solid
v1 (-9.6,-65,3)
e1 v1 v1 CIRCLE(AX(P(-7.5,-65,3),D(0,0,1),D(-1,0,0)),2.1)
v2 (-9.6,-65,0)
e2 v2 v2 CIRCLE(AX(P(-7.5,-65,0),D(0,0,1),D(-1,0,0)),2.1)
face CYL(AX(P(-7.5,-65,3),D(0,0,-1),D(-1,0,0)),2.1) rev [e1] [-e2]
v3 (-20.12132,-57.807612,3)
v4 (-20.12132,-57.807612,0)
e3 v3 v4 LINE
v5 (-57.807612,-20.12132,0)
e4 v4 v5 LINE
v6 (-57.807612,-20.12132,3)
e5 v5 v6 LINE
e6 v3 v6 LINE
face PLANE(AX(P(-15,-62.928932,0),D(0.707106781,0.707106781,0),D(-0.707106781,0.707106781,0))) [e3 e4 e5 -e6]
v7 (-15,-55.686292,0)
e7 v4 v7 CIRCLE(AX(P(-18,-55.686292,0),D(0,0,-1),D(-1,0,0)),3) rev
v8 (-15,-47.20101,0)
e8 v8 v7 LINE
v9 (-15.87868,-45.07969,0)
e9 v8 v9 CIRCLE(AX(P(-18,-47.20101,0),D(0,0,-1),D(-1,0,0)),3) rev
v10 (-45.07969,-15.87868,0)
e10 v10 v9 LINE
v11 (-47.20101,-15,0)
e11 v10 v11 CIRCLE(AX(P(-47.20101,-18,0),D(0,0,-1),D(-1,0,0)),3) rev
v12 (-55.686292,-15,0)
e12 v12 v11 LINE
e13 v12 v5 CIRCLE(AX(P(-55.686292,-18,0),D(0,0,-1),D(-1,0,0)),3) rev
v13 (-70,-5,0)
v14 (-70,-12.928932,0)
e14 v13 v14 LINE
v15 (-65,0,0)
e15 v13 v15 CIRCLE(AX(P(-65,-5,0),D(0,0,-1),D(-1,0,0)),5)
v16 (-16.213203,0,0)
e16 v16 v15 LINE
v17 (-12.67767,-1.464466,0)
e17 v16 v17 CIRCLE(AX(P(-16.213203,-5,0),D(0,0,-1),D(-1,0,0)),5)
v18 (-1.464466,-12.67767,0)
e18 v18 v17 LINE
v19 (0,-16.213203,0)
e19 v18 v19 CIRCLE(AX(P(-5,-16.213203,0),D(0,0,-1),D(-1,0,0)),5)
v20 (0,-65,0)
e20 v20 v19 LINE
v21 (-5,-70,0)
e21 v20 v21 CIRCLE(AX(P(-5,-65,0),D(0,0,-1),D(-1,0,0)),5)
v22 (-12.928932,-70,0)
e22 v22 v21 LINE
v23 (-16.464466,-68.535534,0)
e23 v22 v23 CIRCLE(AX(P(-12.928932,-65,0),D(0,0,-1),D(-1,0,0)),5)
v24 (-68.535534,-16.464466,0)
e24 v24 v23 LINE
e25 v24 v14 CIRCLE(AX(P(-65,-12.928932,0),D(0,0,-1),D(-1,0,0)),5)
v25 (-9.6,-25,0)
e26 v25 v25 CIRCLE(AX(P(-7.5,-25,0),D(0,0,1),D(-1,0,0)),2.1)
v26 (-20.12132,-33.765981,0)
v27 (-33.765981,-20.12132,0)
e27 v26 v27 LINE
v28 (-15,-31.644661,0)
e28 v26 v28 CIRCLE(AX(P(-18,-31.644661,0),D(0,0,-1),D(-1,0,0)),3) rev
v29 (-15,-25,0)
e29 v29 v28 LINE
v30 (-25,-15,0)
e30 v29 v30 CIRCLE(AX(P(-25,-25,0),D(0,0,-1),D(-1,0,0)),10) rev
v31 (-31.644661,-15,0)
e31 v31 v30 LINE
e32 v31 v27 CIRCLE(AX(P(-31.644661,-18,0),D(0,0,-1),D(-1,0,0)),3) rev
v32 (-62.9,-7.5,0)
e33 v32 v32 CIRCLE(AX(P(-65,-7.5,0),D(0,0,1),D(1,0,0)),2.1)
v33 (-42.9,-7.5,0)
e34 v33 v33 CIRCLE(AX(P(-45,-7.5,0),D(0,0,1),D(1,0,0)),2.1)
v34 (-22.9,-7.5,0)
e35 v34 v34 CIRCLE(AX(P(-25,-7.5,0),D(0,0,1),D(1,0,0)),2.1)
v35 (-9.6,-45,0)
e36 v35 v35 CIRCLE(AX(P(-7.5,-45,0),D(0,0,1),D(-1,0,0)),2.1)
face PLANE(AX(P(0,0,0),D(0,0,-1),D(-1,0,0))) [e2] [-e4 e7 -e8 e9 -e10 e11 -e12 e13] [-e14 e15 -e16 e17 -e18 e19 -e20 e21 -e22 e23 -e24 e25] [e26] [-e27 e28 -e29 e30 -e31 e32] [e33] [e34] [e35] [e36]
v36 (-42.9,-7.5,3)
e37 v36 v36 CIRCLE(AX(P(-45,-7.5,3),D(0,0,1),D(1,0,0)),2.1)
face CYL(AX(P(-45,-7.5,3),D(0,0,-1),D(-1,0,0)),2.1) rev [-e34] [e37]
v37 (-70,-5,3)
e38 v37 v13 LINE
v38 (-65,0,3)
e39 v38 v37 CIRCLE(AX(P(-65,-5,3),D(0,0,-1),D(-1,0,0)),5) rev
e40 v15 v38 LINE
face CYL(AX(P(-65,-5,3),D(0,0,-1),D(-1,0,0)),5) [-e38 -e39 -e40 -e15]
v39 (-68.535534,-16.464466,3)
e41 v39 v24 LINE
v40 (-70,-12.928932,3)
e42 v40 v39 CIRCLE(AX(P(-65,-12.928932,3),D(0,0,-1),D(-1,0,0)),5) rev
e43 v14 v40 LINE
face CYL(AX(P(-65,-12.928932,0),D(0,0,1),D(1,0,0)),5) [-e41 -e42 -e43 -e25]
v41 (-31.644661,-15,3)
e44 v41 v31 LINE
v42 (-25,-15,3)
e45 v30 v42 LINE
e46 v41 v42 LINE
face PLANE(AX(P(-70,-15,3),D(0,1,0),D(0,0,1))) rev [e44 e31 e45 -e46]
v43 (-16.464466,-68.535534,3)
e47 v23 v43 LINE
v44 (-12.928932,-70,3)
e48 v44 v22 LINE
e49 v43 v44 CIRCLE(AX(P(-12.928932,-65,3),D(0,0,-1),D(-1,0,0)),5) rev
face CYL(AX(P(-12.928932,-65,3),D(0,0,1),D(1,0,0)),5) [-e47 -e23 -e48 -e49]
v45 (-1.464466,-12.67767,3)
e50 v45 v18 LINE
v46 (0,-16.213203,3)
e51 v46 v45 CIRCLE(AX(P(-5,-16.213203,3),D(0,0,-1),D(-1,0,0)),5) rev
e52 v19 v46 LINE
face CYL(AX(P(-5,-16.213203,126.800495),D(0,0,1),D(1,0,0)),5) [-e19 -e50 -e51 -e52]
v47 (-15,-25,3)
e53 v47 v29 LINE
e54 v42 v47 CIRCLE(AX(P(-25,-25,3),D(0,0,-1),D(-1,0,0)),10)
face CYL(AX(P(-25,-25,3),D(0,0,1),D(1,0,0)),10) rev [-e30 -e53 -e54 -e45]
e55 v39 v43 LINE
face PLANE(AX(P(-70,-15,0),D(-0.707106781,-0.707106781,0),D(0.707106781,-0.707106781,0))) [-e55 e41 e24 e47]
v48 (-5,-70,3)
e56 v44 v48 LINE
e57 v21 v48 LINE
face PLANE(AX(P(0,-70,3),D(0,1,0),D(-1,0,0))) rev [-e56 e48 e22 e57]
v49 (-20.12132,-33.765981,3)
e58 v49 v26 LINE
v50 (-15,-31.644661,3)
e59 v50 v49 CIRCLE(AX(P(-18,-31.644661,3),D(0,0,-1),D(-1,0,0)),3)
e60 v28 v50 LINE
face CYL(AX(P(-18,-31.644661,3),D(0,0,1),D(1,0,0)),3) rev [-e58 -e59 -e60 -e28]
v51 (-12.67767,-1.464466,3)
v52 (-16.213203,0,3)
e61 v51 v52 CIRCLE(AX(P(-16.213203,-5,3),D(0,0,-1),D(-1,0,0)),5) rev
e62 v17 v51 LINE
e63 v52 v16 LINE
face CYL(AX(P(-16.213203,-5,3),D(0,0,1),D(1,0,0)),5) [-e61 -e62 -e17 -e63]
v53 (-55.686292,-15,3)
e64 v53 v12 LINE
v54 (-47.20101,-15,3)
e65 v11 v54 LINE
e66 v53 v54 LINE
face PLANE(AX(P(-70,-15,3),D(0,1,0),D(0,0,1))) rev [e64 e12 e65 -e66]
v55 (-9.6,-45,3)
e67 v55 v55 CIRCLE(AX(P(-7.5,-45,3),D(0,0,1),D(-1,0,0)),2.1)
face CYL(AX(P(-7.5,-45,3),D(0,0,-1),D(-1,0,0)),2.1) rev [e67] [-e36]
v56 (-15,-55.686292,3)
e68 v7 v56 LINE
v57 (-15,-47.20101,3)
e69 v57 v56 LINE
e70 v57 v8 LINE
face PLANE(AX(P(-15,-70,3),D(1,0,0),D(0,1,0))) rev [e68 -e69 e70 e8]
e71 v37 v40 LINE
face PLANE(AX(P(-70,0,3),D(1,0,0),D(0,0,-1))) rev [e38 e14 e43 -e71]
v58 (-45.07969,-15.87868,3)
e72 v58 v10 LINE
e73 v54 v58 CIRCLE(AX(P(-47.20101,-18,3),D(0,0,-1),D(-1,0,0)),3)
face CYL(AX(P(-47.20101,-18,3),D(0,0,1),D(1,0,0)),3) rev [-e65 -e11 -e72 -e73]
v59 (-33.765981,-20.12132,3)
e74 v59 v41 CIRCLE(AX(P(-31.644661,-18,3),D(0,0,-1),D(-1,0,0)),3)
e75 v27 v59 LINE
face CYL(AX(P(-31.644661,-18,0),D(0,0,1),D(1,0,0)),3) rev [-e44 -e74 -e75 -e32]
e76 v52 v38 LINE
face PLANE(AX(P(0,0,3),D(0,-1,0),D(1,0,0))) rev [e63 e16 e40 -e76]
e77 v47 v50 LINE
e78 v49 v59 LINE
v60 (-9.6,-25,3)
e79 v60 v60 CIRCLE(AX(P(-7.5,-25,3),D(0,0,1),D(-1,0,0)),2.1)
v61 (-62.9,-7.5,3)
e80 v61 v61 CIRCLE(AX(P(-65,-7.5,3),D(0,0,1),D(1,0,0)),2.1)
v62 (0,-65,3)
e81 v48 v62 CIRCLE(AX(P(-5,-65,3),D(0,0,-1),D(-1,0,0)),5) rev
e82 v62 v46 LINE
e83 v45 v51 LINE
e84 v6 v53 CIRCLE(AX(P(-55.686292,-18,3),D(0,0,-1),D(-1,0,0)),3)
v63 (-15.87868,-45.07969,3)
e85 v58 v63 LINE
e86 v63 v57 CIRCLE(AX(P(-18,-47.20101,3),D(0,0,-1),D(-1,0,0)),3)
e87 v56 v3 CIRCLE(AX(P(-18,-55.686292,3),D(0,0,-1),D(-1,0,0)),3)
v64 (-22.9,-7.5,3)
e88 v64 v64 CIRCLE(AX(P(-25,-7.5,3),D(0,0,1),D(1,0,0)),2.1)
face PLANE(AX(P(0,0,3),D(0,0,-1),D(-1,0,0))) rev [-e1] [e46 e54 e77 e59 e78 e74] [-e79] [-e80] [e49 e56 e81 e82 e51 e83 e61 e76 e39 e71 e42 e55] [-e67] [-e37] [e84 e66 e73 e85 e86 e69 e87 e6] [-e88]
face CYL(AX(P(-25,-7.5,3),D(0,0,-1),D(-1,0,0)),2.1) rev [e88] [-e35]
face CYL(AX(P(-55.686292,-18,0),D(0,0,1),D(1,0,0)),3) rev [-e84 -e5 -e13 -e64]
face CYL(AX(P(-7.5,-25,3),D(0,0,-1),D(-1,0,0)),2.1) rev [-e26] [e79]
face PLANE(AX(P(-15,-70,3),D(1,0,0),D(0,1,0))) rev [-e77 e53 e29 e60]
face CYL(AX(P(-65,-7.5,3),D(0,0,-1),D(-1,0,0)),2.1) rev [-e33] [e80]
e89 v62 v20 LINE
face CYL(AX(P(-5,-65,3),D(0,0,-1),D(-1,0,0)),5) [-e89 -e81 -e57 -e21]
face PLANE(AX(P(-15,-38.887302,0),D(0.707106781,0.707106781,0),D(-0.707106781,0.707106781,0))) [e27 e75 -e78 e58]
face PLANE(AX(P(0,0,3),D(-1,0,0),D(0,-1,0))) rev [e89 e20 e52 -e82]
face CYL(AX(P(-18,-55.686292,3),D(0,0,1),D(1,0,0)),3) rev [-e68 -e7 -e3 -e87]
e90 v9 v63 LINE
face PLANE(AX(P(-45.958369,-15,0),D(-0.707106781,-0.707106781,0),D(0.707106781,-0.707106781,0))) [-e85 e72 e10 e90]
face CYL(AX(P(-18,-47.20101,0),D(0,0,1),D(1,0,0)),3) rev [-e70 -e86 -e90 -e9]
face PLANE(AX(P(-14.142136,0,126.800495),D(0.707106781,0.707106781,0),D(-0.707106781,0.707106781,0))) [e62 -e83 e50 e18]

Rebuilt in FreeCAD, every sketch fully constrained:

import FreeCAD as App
import Part
import Sketcher
Q = App.Units.Quantity


def edges_at(feature, points):
    """Names of the edges that pass closest to the given points."""
    edges = feature.Shape.Edges
    near = lambda p: min(range(len(edges)), key=lambda i: edges[i].distToShape(Part.Vertex(*p))[0])
    return sorted({f"Edge{near(p) + 1}" for p in points})

doc = App.newDocument("Part")
body = doc.addObject("PartDesign::Body", "Body")

# Sketch on XY plane
sketch1 = body.newObject("Sketcher::SketchObject", "Sketch")
sketch1.AttachmentSupport = (doc.getObject("XY_Plane"), [""])
sketch1.MapMode = "FlatFace"
sketch1.addGeometry(Part.LineSegment(App.Vector(0, 0, 0), App.Vector(-70, 0, 0)), False)
sketch1.addGeometry(Part.LineSegment(App.Vector(-70, 0, 0), App.Vector(-70, -15, 0)), False)
sketch1.addGeometry(Part.LineSegment(App.Vector(-70, -15, 0), App.Vector(-15, -15, 0)), False)
sketch1.addGeometry(Part.LineSegment(App.Vector(-15, -15, 0), App.Vector(-15, -70, 0)), False)
sketch1.addGeometry(Part.LineSegment(App.Vector(-15, -70, 0), App.Vector(0, -70, 0)), False)
sketch1.addGeometry(Part.LineSegment(App.Vector(0, -70, 0), App.Vector(0, 0, 0)), False)
sketch1.addGeometry(Part.Circle(App.Vector(-7.5, -65, 0), App.Vector(0, 0, 1), 2.1), False)
sketch1.addGeometry(Part.Circle(App.Vector(-7.5, -45, 0), App.Vector(0, 0, 1), 2.1), False)
sketch1.addGeometry(Part.Circle(App.Vector(-65, -7.5, 0), App.Vector(0, 0, 1), 2.1), False)
sketch1.addGeometry(Part.Circle(App.Vector(-45, -7.5, 0), App.Vector(0, 0, 1), 2.1), False)
sketch1.addGeometry(Part.Circle(App.Vector(-7.5, -25, 0), App.Vector(0, 0, 1), 2.1), False)
sketch1.addGeometry(Part.Circle(App.Vector(-25, -7.5, 0), App.Vector(0, 0, 1), 2.1), False)
sketch1.addConstraint(Sketcher.Constraint("Coincident", 0, 2, 1, 1))
sketch1.addConstraint(Sketcher.Constraint("Coincident", 1, 2, 2, 1))
sketch1.addConstraint(Sketcher.Constraint("Coincident", 2, 2, 3, 1))
sketch1.addConstraint(Sketcher.Constraint("Coincident", 3, 2, 4, 1))
sketch1.addConstraint(Sketcher.Constraint("Coincident", 4, 2, 5, 1))
sketch1.addConstraint(Sketcher.Constraint("Coincident", 5, 2, 0, 1))
sketch1.addConstraint(Sketcher.Constraint("Horizontal", 0))
sketch1.addConstraint(Sketcher.Constraint("Vertical", 1))
sketch1.addConstraint(Sketcher.Constraint("Horizontal", 2))
sketch1.addConstraint(Sketcher.Constraint("Vertical", 3))
sketch1.addConstraint(Sketcher.Constraint("Horizontal", 4))
sketch1.addConstraint(Sketcher.Constraint("Vertical", 5))
sketch1.addConstraint(Sketcher.Constraint("Coincident", 5, 2, -1, 1))
sketch1.addConstraint(Sketcher.Constraint("Equal", 6, 7))
sketch1.addConstraint(Sketcher.Constraint("Equal", 7, 8))
sketch1.addConstraint(Sketcher.Constraint("Equal", 8, 9))
sketch1.addConstraint(Sketcher.Constraint("Equal", 9, 10))
sketch1.addConstraint(Sketcher.Constraint("Equal", 10, 11))
sketch1.addConstraint(Sketcher.Constraint("Horizontal", 8, 3, 9, 3))
sketch1.addConstraint(Sketcher.Constraint("Horizontal", 9, 3, 11, 3))
sketch1.addConstraint(Sketcher.Constraint("Vertical", 6, 3, 7, 3))
sketch1.addConstraint(Sketcher.Constraint("Vertical", 7, 3, 10, 3))
sketch1.addConstraint(Sketcher.Constraint("Equal", 4, 1))
sketch1.addConstraint(Sketcher.Constraint("Equal", 2, 3))
sketch1.addConstraint(Sketcher.Constraint("Diameter", 6, 4.2))
sketch1.addConstraint(Sketcher.Constraint("DistanceX", 0, 2, 0, 1, 70.0))
sketch1.addConstraint(Sketcher.Constraint("DistanceX", 2, 1, 2, 2, 55.0))
sketch1.addConstraint(Sketcher.Constraint("DistanceY", 6, 3, -1, 1, 65.0))
sketch1.addConstraint(Sketcher.Constraint("DistanceY", 7, 3, -1, 1, 45.0))
sketch1.addConstraint(Sketcher.Constraint("DistanceX", 8, 3, -1, 1, 65.0))
sketch1.addConstraint(Sketcher.Constraint("DistanceX", 9, 3, -1, 1, 45.0))
sketch1.addConstraint(Sketcher.Constraint("DistanceY", 10, 3, -1, 1, 25.0))
sketch1.addConstraint(Sketcher.Constraint("DistanceX", 11, 3, -1, 1, 25.0))
sketch1.addConstraint(Sketcher.Constraint("DistanceX", 6, 3, -1, 1, 7.5))
sketch1.addConstraint(Sketcher.Constraint("DistanceY", 8, 3, -1, 1, 7.5))
pad1 = body.newObject("PartDesign::Pad", "Pad")
pad1.Profile = sketch1
pad1.Length = 3

# Sketch on XY plane
sketch2 = body.newObject("Sketcher::SketchObject", "Sketch001")
sketch2.AttachmentSupport = (doc.getObject("XY_Plane"), [""])
sketch2.MapMode = "FlatFace"
sketch2.AttachmentOffset = App.Placement(App.Vector(0, 0, 3), App.Rotation())
sketch2.addGeometry(Part.LineSegment(App.Vector(-70, -15, 0), App.Vector(-15, -70, 0)), False)
sketch2.addGeometry(Part.LineSegment(App.Vector(-15, -70, 0), App.Vector(-15, -63, 0)), False)
sketch2.addGeometry(Part.LineSegment(App.Vector(-15, -63, 0), App.Vector(-63, -15, 0)), False)
sketch2.addGeometry(Part.LineSegment(App.Vector(-63, -15, 0), App.Vector(-70, -15, 0)), False)
sketch2.addConstraint(Sketcher.Constraint("Coincident", 0, 2, 1, 1))
sketch2.addConstraint(Sketcher.Constraint("Coincident", 1, 2, 2, 1))
sketch2.addConstraint(Sketcher.Constraint("Coincident", 2, 2, 3, 1))
sketch2.addConstraint(Sketcher.Constraint("Coincident", 3, 2, 0, 1))
sketch2.addConstraint(Sketcher.Constraint("Vertical", 1))
sketch2.addConstraint(Sketcher.Constraint("Horizontal", 3))
sketch2.addConstraint(Sketcher.Constraint("Parallel", 0, 2))
sketch2.addConstraint(Sketcher.Constraint("Equal", 3, 1))
sketch2.addConstraint(Sketcher.Constraint("DistanceX", 0, 2, -1, 1, 15.0))
sketch2.addConstraint(Sketcher.Constraint("DistanceY", 0, 2, -1, 1, 70.0))
sketch2.addConstraint(Sketcher.Constraint("DistanceY", 2, 2, -1, 1, 15.0))
sketch2.addConstraint(Sketcher.Constraint("DistanceX", 3, 2, 3, 1, 7.071068))
pad2 = body.newObject("PartDesign::Pad", "Pad001")
pad2.Profile = sketch2
pad2.Length = 3
pad2.Reversed = True

# Sketch on XY plane
sketch3 = body.newObject("Sketcher::SketchObject", "Sketch002")
sketch3.AttachmentSupport = (doc.getObject("XY_Plane"), [""])
sketch3.MapMode = "FlatFace"
sketch3.AttachmentOffset = App.Placement(App.Vector(0, 0, 3), App.Rotation())
sketch3.addGeometry(Part.LineSegment(App.Vector(-148, 134, 0), App.Vector(134, -148, 0)), False)
sketch3.addGeometry(Part.LineSegment(App.Vector(134, -148, 0), App.Vector(401, 120, 0)), False)
sketch3.addGeometry(Part.LineSegment(App.Vector(401, 120, 0), App.Vector(120, 401, 0)), False)
sketch3.addGeometry(Part.LineSegment(App.Vector(120, 401, 0), App.Vector(-148, 134, 0)), False)
sketch3.addConstraint(Sketcher.Constraint("Coincident", 0, 2, 1, 1))
sketch3.addConstraint(Sketcher.Constraint("Coincident", 1, 2, 2, 1))
sketch3.addConstraint(Sketcher.Constraint("Coincident", 2, 2, 3, 1))
sketch3.addConstraint(Sketcher.Constraint("Coincident", 3, 2, 0, 1))
sketch3.addConstraint(Sketcher.Constraint("Perpendicular", 0, 1))
sketch3.addConstraint(Sketcher.Constraint("Perpendicular", 1, 2))
sketch3.addConstraint(Sketcher.Constraint("Perpendicular", 2, 3))
sketch3.addConstraint(Sketcher.Constraint("Angle", 0, Q("-45 deg")))
sketch3.addConstraint(Sketcher.Constraint("DistanceX", -1, 1, 1, 2, 401.162961))
sketch3.addConstraint(Sketcher.Constraint("DistanceY", -1, 1, 1, 2, 119.578851))
sketch3.addConstraint(Sketcher.Constraint("DistanceX", -1, 1, 2, 2, 119.578851))
sketch3.addConstraint(Sketcher.Constraint("Distance", 1, 378.220067))
pocket1 = body.newObject("PartDesign::Pocket", "Pocket")
pocket1.Profile = sketch3
pocket1.Type = "ThroughAll"
pocket1.Midplane = True
doc.recompute()

fillet = body.newObject("PartDesign::Fillet", "Fillet")
fillet.Base = (pocket1, edges_at(pocket1, [
    (0, -70, 1.5),
    (-15, -70, 1.5),
    (-70, -15, 1.5),
    (-70, 0, 1.5),
    (-14.142, 0, 1.5),
    (0, -14.142, 1.5),
]))
fillet.Radius = 5

# Sketch on XY plane
sketch4 = body.newObject("Sketcher::SketchObject", "Sketch003")
sketch4.AttachmentSupport = (doc.getObject("XY_Plane"), [""])
sketch4.MapMode = "FlatFace"
sketch4.AttachmentOffset = App.Placement(App.Vector(0, 0, 3), App.Rotation())
sketch4.addGeometry(Part.LineSegment(App.Vector(-46, -15, 0), App.Vector(-15, -46, 0)), False)
sketch4.addGeometry(Part.LineSegment(App.Vector(-15, -46, 0), App.Vector(-15, -39, 0)), False)
sketch4.addGeometry(Part.LineSegment(App.Vector(-15, -39, 0), App.Vector(-39, -15, 0)), False)
sketch4.addGeometry(Part.LineSegment(App.Vector(-39, -15, 0), App.Vector(-46, -15, 0)), False)
sketch4.addConstraint(Sketcher.Constraint("Coincident", 0, 2, 1, 1))
sketch4.addConstraint(Sketcher.Constraint("Coincident", 1, 2, 2, 1))
sketch4.addConstraint(Sketcher.Constraint("Coincident", 2, 2, 3, 1))
sketch4.addConstraint(Sketcher.Constraint("Coincident", 3, 2, 0, 1))
sketch4.addConstraint(Sketcher.Constraint("Vertical", 1))
sketch4.addConstraint(Sketcher.Constraint("Horizontal", 3))
sketch4.addConstraint(Sketcher.Constraint("Parallel", 0, 2))
sketch4.addConstraint(Sketcher.Constraint("Equal", 3, 1))
sketch4.addConstraint(Sketcher.Constraint("DistanceX", 0, 2, -1, 1, 15.0))
sketch4.addConstraint(Sketcher.Constraint("DistanceY", 2, 2, -1, 1, 15.0))
sketch4.addConstraint(Sketcher.Constraint("DistanceY", 1, 2, -1, 1, 38.887302))
sketch4.addConstraint(Sketcher.Constraint("DistanceX", 3, 2, 3, 1, 7.071068))
pad3 = body.newObject("PartDesign::Pad", "Pad002")
pad3.Profile = sketch4
pad3.Length = 3
pad3.Reversed = True
doc.recompute()

fillet2 = body.newObject("PartDesign::Fillet", "Fillet001")
fillet2.Base = (pad3, edges_at(pad3, [
    (-45.958, -15, 1.5),
    (-38.887, -15, 1.5),
    (-15, -38.887, 1.5),
    (-15, -45.958, 1.5),
    (-62.929, -15, 1.5),
    (-15, -62.929, 1.5),
]))
fillet2.Radius = 3
doc.recompute()

fillet3 = body.newObject("PartDesign::Fillet", "Fillet002")
fillet3.Base = (fillet2, edges_at(fillet2, [(-15, -15, 1.5)]))
fillet3.Radius = 10

doc.recompute()
